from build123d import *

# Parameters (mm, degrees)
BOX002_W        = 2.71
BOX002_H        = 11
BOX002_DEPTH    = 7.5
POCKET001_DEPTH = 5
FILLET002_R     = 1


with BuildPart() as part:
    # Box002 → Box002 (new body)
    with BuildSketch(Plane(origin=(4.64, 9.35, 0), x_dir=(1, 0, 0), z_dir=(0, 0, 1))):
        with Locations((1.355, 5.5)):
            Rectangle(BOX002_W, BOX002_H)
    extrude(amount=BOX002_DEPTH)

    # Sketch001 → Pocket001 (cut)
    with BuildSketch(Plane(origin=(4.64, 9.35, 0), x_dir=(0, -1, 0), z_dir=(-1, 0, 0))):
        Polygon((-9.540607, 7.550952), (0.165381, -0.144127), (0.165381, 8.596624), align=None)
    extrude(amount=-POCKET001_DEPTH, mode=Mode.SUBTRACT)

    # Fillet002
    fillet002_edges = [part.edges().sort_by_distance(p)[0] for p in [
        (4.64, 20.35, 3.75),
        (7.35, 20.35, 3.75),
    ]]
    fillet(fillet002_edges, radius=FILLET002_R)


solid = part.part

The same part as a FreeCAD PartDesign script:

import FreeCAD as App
import Part
import Sketcher
from FreeCAD import Vector


def edges_at(feature, points):
    """Names of the edges that pass closest to the given points."""
    edges = feature.Shape.Edges
    near = lambda p: min(range(len(edges)), key=lambda i: edges[i].distToShape(Part.Vertex(*p))[0])
    return sorted({f"Edge{near(p) + 1}" for p in points})


def add_polygon(sketch, points):
    """Adds a closed chain of lines whose ends are joined by coincident constraints."""
    first, n = sketch.GeometryCount, len(points)
    for a, b in zip(points, points[1:] + points[:1]):
        sketch.addGeometry(Part.LineSegment(App.Vector(*a, 0), App.Vector(*b, 0)), False)
    for i in range(n):
        sketch.addConstraint(Sketcher.Constraint("Coincident", first + i, 2, first + (i + 1) % n, 1))

doc = App.newDocument("Part")
body = doc.addObject("PartDesign::Body", "Body")

# Sketch on XY plane
sketch1 = body.newObject("Sketcher::SketchObject", "Sketch")
sketch1.AttachmentSupport = (doc.getObject("XY_Plane"), [""])
sketch1.MapMode = "FlatFace"
add_polygon(sketch1, [(4.6, 20.4), (4.6, 9.3), (7.3, 9.3), (7.3, 20.4)])  # lines 0-3
sketch1.addConstraint([
    Sketcher.Constraint("Vertical", 0),
    Sketcher.Constraint("Horizontal", 1),
    Sketcher.Constraint("Vertical", 2),
    Sketcher.Constraint("Horizontal", 3),
    Sketcher.Constraint("DistanceY", 0, 2, 0, 1, 11.0),
    Sketcher.Constraint("DistanceX", 1, 1, 1, 2, 2.71),
    Sketcher.Constraint("DistanceX", -1, 1, 0, 2, 4.64),
    Sketcher.Constraint("DistanceY", -1, 1, 0, 2, 9.35),
])
pad1 = body.newObject("PartDesign::Pad", "Pad")
pad1.Profile = sketch1
pad1.Length = 7.5

# Sketch on YZ plane
sketch2 = body.newObject("Sketcher::SketchObject", "Sketch001")
sketch2.AttachmentSupport = (doc.getObject("YZ_Plane"), [""])
sketch2.MapMode = "FlatFace"
sketch2.AttachmentOffset = App.Placement(Vector(0, 0, 4.64), App.Rotation())
add_polygon(sketch2, [(19, 8), (9, 0), (9, 9)])  # lines 0-2
sketch2.addConstraint([
    Sketcher.Constraint("Vertical", 1),
    Sketcher.Constraint("Distance", 0, 12.386301),
    Sketcher.Constraint("DistanceY", 1, 1, 1, 2, 8.740751),
    Sketcher.Constraint("DistanceX", -1, 1, 0, 2, 9.184619),
    Sketcher.Constraint("DistanceY", -1, 1, 2, 2, 7.550952),
    Sketcher.Constraint("DistanceY", 0, 2, 2, 2, 7.695079),
])
pocket1 = body.newObject("PartDesign::Pocket", "Pocket")
pocket1.Profile = sketch2
pocket1.Length = 5
pocket1.Reversed = True
doc.recompute()

fillet = body.newObject("PartDesign::Fillet", "Fillet")
fillet.Base = (pocket1, edges_at(pocket1, [(4.64, 20.35, 3.75), (7.35, 20.35, 3.75)]))
fillet.Radius = 1

doc.recompute()
